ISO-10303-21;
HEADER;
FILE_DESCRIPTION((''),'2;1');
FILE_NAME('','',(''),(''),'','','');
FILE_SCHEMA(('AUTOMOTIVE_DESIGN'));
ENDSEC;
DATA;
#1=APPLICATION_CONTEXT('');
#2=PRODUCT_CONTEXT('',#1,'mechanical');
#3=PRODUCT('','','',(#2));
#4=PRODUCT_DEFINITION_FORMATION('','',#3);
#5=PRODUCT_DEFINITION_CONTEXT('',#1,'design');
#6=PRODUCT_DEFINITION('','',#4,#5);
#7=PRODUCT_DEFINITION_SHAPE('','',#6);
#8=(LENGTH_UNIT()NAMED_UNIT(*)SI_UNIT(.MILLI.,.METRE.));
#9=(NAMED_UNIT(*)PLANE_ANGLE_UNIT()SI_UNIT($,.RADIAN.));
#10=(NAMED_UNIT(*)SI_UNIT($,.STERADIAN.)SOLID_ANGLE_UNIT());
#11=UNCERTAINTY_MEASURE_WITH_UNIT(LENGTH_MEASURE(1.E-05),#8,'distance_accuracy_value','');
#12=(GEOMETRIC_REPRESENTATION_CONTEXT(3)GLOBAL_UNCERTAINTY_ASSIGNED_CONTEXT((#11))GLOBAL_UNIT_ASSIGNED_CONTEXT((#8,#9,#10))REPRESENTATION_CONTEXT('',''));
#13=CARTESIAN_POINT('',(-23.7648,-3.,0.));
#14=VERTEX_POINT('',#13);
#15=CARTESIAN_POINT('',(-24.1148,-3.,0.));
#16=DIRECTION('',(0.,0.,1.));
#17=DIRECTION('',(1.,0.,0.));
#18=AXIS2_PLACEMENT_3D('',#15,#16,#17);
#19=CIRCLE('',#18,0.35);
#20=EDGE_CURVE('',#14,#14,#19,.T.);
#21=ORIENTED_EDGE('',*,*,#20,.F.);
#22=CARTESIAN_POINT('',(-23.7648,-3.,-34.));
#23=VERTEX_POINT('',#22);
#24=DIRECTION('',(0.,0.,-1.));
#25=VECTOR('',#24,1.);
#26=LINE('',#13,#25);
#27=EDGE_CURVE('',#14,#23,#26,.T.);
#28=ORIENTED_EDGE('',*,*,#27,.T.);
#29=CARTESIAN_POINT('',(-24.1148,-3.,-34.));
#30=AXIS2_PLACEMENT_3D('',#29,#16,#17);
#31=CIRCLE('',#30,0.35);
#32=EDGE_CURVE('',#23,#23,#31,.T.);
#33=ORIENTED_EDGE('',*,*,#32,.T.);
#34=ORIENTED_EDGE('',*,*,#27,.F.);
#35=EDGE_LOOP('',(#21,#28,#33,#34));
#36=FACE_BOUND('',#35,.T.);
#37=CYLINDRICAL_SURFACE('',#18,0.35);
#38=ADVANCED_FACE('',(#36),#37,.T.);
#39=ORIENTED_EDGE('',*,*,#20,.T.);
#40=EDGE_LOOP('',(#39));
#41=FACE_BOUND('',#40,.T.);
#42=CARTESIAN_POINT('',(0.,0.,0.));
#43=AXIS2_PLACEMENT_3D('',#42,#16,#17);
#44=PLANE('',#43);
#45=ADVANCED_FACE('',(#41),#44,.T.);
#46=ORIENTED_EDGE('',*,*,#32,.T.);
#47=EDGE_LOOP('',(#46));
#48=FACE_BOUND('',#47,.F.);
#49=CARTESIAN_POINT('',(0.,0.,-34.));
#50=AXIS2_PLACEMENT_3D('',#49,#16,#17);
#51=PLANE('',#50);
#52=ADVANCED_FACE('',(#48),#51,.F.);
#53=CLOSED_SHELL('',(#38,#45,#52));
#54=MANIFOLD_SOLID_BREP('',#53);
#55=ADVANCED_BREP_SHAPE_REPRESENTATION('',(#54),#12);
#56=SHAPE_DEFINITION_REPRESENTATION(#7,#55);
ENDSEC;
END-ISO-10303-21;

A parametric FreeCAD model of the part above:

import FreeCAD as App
import Part
import Sketcher

doc = App.newDocument("Part")
body = doc.addObject("PartDesign::Body", "Body")

# Sketch on XY plane
sketch1 = body.newObject("Sketcher::SketchObject", "Sketch")
sketch1.AttachmentSupport = (doc.getObject("XY_Plane"), [""])
sketch1.MapMode = "FlatFace"
sketch1.addGeometry(Part.Circle(App.Vector(-24.11, -3, 0), App.Vector(0, 0, 1), 0.35), False)
sketch1.addConstraint([
    Sketcher.Constraint("Diameter", 0, 0.7),
    Sketcher.Constraint("DistanceY", 0, 3, -1, 1, 3.0),
    Sketcher.Constraint("DistanceX", 0, 3, -1, 1, 24.1148),
])
pad1 = body.newObject("PartDesign::Pad", "Pad")
pad1.Profile = sketch1
pad1.Length = 34
pad1.Reversed = True

doc.recompute()
